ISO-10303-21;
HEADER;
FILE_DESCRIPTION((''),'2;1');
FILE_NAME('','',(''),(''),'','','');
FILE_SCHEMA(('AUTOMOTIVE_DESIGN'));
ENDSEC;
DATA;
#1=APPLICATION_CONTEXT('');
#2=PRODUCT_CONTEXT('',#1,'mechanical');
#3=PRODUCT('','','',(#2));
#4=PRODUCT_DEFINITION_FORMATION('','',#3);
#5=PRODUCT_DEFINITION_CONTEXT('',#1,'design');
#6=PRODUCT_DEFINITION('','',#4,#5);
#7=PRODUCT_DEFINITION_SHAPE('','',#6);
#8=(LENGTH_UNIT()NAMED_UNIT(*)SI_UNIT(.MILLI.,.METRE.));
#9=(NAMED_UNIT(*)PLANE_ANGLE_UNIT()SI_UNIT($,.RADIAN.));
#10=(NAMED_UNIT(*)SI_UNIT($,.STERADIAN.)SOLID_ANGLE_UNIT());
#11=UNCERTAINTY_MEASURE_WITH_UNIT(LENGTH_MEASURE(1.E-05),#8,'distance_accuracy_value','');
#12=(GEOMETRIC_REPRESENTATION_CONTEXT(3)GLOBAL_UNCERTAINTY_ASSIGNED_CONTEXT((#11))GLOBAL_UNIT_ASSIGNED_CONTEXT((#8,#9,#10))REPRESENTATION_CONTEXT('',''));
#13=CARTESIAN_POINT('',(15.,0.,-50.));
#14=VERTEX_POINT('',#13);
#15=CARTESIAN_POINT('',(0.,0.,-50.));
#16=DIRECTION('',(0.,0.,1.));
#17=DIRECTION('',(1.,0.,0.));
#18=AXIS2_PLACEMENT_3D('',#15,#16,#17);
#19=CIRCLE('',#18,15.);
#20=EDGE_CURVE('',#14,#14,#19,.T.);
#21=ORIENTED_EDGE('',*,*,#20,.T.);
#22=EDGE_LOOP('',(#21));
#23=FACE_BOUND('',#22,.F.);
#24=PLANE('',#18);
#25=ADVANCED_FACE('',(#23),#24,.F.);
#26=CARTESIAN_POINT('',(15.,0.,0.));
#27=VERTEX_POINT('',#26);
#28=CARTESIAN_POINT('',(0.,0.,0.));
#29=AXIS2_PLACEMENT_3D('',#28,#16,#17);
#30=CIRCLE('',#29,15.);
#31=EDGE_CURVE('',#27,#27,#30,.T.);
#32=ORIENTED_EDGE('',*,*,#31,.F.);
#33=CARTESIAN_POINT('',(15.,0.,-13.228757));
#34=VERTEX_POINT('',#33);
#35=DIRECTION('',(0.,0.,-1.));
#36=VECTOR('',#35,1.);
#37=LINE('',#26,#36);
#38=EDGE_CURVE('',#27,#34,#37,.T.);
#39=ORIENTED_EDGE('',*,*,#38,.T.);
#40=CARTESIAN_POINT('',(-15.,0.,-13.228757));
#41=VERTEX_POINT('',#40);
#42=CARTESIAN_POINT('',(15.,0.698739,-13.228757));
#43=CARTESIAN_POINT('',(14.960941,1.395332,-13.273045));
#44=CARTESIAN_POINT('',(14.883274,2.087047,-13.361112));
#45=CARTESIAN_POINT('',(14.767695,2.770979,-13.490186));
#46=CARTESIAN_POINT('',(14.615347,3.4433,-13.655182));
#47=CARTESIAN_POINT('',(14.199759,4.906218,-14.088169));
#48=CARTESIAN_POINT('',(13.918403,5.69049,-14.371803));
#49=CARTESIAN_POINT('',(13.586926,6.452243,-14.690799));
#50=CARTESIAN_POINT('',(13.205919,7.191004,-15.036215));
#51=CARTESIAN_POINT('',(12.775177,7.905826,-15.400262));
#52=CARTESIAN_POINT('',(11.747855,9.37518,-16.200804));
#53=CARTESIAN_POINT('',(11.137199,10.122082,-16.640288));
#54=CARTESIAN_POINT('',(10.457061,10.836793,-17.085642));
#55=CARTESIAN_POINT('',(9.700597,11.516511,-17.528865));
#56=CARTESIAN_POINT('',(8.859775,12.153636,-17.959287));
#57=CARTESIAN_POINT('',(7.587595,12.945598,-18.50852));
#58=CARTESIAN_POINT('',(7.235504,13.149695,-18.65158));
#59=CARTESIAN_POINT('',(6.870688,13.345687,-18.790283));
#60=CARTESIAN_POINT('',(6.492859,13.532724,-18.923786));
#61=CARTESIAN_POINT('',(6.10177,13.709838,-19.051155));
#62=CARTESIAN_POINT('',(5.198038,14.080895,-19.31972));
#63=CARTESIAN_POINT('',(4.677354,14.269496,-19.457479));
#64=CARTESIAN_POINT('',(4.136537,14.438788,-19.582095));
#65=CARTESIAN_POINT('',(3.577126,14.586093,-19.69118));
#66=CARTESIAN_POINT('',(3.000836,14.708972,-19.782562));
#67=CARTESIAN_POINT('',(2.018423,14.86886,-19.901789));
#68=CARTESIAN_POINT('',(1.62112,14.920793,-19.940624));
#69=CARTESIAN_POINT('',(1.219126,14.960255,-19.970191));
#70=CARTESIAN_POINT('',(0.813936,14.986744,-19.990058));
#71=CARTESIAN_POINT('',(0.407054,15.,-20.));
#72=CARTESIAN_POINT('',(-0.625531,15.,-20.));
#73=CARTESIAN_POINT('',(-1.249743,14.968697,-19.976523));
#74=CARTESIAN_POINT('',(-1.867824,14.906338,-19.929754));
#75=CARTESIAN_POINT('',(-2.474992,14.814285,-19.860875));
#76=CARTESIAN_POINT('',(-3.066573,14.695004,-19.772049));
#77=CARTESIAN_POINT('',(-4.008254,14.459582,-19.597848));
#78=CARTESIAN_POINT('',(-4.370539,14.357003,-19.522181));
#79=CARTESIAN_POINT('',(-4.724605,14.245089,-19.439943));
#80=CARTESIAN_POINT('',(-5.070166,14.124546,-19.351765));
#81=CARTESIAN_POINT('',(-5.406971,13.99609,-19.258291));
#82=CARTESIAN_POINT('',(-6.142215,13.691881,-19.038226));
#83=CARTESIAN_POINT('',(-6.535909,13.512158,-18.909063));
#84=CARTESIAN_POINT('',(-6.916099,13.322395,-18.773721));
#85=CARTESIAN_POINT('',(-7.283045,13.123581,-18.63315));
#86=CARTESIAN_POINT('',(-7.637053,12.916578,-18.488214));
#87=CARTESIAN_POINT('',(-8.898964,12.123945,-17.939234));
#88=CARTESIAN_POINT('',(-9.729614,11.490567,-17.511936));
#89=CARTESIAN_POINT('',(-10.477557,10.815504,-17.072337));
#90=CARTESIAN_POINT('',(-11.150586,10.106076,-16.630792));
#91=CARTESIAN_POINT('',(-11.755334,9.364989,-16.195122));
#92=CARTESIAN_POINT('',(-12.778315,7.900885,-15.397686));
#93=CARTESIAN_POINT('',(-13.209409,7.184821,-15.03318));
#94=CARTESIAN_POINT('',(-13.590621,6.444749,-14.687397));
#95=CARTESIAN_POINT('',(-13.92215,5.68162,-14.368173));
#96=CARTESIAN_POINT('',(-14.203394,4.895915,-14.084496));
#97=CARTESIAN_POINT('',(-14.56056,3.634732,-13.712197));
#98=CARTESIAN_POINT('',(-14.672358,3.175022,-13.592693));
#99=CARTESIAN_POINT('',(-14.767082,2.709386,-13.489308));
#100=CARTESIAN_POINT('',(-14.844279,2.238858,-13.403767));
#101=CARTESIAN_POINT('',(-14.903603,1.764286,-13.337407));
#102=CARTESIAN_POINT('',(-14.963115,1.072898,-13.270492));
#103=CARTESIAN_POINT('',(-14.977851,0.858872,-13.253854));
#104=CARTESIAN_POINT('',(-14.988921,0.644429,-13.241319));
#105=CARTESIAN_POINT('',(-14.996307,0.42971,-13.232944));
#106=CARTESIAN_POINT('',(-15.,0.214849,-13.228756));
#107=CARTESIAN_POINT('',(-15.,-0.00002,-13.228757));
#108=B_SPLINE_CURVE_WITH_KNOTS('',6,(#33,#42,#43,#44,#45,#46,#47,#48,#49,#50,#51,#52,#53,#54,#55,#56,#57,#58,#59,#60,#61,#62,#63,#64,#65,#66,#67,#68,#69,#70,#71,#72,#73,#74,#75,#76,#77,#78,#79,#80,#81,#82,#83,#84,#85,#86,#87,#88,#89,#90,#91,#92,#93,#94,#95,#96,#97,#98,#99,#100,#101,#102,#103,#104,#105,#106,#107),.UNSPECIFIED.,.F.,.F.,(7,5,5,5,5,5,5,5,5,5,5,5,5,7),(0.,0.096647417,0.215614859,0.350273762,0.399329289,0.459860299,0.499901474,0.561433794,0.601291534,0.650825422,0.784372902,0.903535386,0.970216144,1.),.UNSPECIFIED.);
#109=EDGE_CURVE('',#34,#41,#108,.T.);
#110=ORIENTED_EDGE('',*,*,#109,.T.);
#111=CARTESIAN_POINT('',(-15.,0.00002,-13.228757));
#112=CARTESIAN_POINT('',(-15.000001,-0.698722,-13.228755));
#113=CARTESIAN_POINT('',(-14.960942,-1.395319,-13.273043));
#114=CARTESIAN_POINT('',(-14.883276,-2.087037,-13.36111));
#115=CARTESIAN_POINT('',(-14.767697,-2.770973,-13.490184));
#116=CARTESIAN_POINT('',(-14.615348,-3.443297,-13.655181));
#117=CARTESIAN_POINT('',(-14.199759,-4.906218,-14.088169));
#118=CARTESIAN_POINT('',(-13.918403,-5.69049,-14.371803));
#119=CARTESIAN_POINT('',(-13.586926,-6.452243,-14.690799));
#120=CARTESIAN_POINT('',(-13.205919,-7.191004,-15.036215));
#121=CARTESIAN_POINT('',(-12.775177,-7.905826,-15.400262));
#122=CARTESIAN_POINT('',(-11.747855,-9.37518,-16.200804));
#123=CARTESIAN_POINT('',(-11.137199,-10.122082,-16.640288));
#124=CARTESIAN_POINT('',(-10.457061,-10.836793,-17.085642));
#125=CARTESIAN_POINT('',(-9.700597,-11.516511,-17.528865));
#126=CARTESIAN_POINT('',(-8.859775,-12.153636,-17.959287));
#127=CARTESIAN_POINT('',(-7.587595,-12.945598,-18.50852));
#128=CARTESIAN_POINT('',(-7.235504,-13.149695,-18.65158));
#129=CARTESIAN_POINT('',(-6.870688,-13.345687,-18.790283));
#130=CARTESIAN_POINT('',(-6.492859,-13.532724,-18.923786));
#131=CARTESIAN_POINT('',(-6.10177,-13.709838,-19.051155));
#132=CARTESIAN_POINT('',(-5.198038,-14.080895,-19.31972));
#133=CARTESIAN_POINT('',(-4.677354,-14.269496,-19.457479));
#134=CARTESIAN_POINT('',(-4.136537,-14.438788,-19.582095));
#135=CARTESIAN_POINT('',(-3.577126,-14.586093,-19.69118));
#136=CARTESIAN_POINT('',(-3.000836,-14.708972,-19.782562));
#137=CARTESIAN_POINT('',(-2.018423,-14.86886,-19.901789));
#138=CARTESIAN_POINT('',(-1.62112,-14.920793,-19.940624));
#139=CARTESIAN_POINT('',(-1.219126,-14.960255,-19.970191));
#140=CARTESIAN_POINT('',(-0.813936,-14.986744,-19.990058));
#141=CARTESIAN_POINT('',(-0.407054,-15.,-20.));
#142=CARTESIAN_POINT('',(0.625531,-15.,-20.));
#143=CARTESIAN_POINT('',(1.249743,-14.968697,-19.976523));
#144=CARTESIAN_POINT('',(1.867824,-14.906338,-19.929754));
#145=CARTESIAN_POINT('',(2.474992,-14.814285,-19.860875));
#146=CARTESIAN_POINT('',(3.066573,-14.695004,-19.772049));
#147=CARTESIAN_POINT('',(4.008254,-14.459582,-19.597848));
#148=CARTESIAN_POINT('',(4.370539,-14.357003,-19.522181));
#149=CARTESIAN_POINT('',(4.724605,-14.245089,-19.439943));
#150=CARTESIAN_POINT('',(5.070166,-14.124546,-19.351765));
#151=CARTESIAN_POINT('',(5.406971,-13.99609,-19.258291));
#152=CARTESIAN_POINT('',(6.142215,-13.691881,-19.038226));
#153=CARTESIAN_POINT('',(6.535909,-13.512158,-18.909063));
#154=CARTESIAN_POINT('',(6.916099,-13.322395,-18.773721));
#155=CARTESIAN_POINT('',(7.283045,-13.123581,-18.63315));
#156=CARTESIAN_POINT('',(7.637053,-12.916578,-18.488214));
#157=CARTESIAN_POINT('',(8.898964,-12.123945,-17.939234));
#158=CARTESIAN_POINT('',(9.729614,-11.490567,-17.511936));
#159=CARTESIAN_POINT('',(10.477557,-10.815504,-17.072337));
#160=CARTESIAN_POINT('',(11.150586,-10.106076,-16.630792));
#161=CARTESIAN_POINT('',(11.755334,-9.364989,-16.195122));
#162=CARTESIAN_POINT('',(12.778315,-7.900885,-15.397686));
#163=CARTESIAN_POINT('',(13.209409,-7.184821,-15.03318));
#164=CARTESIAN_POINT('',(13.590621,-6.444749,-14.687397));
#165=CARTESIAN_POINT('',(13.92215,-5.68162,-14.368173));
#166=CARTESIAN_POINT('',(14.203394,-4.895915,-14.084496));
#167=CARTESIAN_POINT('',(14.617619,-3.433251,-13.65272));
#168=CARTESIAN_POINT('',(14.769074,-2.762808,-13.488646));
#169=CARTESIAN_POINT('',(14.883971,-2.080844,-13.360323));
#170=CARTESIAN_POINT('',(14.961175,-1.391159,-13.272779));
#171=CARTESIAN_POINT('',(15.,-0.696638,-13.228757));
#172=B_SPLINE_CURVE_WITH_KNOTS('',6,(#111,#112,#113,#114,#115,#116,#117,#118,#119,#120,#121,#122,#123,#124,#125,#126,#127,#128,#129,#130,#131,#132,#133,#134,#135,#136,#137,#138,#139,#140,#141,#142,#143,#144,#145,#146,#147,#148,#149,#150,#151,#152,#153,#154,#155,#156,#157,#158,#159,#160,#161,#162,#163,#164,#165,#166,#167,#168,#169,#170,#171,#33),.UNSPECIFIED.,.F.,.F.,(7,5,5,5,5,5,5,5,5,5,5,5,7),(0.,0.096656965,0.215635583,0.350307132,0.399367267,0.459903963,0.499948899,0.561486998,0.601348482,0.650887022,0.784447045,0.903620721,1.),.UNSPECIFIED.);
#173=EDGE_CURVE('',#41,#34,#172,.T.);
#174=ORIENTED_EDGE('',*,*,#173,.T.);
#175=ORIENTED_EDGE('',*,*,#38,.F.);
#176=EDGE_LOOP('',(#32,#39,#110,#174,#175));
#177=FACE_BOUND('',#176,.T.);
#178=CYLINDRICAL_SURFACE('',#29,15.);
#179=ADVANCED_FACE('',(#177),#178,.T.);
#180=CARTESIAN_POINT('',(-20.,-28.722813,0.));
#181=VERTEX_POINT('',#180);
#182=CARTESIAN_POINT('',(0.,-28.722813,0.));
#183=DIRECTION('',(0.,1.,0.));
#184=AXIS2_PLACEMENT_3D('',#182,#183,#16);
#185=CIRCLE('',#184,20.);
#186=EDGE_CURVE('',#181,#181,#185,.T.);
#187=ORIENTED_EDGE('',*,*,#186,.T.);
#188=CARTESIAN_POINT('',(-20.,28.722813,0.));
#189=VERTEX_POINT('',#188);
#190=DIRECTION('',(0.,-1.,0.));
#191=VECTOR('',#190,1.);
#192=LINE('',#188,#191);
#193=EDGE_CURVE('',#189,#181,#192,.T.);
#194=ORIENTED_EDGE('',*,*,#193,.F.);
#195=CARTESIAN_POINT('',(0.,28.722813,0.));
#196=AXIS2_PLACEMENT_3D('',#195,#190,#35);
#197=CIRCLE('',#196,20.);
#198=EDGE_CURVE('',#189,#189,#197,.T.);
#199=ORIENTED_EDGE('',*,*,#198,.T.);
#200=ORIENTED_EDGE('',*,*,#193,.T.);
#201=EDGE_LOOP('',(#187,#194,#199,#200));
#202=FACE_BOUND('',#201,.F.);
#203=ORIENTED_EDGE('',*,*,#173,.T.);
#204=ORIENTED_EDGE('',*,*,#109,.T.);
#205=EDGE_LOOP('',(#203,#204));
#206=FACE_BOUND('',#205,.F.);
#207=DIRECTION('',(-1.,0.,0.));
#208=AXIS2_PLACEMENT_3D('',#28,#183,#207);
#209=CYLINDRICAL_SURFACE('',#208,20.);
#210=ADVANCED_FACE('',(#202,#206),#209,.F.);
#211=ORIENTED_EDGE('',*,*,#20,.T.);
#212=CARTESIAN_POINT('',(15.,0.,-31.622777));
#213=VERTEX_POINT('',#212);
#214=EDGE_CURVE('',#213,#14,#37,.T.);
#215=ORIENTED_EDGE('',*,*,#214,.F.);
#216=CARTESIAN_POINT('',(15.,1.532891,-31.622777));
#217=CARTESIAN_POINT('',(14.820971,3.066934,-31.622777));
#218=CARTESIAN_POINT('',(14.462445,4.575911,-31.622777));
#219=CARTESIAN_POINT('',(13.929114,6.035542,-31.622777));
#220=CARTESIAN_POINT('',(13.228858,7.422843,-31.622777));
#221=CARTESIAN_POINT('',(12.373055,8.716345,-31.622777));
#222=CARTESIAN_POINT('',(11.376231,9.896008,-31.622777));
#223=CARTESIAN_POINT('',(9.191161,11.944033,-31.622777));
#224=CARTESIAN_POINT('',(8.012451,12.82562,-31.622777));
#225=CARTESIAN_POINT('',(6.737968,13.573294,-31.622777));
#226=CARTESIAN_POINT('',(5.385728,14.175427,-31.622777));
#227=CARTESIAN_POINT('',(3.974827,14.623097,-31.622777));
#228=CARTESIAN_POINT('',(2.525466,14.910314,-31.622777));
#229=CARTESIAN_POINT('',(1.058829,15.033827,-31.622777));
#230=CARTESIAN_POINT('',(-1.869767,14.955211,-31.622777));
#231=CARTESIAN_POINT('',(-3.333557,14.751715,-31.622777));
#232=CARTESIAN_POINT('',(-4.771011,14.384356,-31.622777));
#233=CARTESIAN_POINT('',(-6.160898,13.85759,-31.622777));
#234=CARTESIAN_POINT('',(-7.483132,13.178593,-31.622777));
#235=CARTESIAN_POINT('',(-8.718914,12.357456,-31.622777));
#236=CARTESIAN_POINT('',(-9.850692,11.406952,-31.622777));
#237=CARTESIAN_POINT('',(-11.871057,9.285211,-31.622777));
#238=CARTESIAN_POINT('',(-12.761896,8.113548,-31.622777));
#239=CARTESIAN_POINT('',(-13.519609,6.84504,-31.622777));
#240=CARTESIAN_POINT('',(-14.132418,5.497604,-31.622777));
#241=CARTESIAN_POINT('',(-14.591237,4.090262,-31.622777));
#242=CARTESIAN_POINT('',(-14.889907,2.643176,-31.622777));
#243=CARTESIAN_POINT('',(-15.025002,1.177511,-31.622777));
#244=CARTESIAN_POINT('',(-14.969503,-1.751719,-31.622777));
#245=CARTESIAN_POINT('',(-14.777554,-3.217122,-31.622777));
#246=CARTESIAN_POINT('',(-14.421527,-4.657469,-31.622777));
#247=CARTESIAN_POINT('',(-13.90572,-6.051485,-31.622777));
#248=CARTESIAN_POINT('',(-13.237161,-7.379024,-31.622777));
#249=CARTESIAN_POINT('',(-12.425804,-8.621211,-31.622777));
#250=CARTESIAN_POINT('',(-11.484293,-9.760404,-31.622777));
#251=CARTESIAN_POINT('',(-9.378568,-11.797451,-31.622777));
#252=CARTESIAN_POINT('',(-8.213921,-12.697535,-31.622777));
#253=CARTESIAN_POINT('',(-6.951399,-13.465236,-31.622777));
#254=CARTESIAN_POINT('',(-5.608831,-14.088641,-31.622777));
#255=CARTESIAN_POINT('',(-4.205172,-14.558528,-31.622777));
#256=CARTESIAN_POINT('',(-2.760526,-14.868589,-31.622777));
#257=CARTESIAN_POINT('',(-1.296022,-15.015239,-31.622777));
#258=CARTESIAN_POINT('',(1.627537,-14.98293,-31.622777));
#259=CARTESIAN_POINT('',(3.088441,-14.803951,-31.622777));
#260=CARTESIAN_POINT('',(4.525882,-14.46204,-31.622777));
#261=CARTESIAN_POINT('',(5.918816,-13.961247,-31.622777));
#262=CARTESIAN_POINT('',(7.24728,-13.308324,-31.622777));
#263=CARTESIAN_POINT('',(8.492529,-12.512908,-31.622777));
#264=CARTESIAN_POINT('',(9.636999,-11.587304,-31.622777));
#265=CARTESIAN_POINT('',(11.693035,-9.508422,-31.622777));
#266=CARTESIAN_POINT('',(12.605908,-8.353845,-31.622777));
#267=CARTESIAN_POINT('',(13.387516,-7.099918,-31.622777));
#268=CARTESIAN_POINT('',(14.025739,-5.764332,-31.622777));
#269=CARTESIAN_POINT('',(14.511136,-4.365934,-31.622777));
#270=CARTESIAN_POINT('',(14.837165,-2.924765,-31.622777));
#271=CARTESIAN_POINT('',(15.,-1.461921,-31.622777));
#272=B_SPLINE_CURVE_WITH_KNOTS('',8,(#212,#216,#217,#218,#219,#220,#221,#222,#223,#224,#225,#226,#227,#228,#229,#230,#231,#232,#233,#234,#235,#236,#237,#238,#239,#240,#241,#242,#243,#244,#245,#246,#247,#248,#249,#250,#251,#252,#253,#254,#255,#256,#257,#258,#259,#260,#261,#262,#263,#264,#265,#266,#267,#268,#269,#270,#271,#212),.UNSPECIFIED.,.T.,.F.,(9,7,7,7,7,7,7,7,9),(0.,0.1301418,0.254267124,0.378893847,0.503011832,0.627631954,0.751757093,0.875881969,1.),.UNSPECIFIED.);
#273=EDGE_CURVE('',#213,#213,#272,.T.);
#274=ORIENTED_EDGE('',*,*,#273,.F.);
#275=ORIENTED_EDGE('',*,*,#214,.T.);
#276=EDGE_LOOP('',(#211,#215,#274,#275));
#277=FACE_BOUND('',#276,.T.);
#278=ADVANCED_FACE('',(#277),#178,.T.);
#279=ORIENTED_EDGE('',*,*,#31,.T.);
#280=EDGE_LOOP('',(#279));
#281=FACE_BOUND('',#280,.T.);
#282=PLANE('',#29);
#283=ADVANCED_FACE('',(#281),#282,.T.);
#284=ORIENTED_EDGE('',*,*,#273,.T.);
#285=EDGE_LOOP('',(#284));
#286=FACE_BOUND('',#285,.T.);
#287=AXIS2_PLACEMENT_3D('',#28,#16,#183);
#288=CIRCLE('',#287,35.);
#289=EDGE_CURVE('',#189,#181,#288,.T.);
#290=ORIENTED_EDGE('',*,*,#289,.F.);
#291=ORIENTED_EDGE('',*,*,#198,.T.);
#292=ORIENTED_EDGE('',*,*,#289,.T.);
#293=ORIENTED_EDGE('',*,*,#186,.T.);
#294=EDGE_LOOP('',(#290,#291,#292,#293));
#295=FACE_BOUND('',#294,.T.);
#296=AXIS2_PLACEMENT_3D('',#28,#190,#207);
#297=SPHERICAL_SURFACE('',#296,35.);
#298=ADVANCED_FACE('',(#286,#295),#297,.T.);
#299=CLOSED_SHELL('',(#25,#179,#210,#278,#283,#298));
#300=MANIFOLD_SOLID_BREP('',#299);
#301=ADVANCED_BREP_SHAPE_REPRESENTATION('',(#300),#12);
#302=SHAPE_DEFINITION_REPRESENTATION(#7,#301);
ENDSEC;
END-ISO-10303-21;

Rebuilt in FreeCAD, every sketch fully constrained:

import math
import FreeCAD as App
import Part
import Sketcher

V = App.Vector
Q = App.Units.Quantity

doc = App.newDocument("Part")
params = doc.addObject("Spreadsheet::Sheet", "Params")
for row, (alias, value) in enumerate([
    ("sketch1_radius", "35 mm"),
    ("revolution_angle", "360 deg"),
    ("sketch2_diameter", "40 mm"),
    ("pocket1_length", "100 mm"),
    ("sketch3_diameter", "30 mm"),
    ("pad1_length", "50 mm"),
], start=1):
    params.set(f"A{row}", alias)
    params.set(f"B{row}", "=" + value)
    params.setAlias(f"B{row}", alias)

body = doc.addObject("PartDesign::Body", "Body")

sketch1 = body.newObject("Sketcher::SketchObject", "Sketch")
sketch1.AttachmentSupport = (doc.getObject("XY_Plane"), [""])
sketch1.MapMode = "FlatFace"
sketch1.addGeometry(Part.LineSegment(V(0, -35, 0), V(0, 35, 0)), False)
sketch1.addGeometry(Part.ArcOfCircle(Part.Circle(V(0, 0, 0), V(0, 0, 1), 35), math.radians(90), math.radians(270)), False)
sketch1.addConstraint(Sketcher.Constraint("Coincident", 0, 1, 1, 2))
sketch1.addConstraint(Sketcher.Constraint("Coincident", 1, 1, 0, 2))
sketch1.addConstraint(Sketcher.Constraint("Vertical", 0))
sketch1.addConstraint(Sketcher.Constraint("Coincident", 1, 3, -1, 1))
sketch1.addConstraint(Sketcher.Constraint("PointOnObject", 0, 1, -2))
sketch1.addConstraint(Sketcher.Constraint("Radius", 1, Q("35 mm")))
sketch1.setExpression("Constraints[5]", "Params.sketch1_radius")
revolution = body.newObject("PartDesign::Revolution", "Revolution")
revolution.Profile = sketch1
revolution.ReferenceAxis = (sketch1, ["V_Axis"])
revolution.setExpression("Angle", "Params.revolution_angle")

sketch2 = body.newObject("Sketcher::SketchObject", "Sketch001")
sketch2.AttachmentSupport = (doc.getObject("XZ_Plane"), [""])
sketch2.MapMode = "FlatFace"
sketch2.addGeometry(Part.Circle(V(0, 0, 0), V(0, 0, 1), 20), False)
sketch2.addConstraint(Sketcher.Constraint("Coincident", 0, 3, -1, 1))
sketch2.addConstraint(Sketcher.Constraint("Diameter", 0, Q("40 mm")))
sketch2.setExpression("Constraints[1]", "Params.sketch2_diameter")
pocket1 = body.newObject("PartDesign::Pocket", "Pocket")
pocket1.Profile = sketch2
pocket1.setExpression("Length", "Params.pocket1_length")
pocket1.Midplane = True

sketch3 = body.newObject("Sketcher::SketchObject", "Sketch002")
sketch3.AttachmentSupport = (doc.getObject("XY_Plane"), [""])
sketch3.MapMode = "FlatFace"
sketch3.addGeometry(Part.Circle(V(0, 0, 0), V(0, 0, 1), 15), False)
sketch3.addConstraint(Sketcher.Constraint("Coincident", 0, 3, -1, 1))
sketch3.addConstraint(Sketcher.Constraint("Diameter", 0, Q("30 mm")))
sketch3.setExpression("Constraints[1]", "Params.sketch3_diameter")
pad1 = body.newObject("PartDesign::Pad", "Pad")
pad1.Profile = sketch3
pad1.setExpression("Length", "Params.pad1_length")
pad1.Reversed = True

doc.recompute()
